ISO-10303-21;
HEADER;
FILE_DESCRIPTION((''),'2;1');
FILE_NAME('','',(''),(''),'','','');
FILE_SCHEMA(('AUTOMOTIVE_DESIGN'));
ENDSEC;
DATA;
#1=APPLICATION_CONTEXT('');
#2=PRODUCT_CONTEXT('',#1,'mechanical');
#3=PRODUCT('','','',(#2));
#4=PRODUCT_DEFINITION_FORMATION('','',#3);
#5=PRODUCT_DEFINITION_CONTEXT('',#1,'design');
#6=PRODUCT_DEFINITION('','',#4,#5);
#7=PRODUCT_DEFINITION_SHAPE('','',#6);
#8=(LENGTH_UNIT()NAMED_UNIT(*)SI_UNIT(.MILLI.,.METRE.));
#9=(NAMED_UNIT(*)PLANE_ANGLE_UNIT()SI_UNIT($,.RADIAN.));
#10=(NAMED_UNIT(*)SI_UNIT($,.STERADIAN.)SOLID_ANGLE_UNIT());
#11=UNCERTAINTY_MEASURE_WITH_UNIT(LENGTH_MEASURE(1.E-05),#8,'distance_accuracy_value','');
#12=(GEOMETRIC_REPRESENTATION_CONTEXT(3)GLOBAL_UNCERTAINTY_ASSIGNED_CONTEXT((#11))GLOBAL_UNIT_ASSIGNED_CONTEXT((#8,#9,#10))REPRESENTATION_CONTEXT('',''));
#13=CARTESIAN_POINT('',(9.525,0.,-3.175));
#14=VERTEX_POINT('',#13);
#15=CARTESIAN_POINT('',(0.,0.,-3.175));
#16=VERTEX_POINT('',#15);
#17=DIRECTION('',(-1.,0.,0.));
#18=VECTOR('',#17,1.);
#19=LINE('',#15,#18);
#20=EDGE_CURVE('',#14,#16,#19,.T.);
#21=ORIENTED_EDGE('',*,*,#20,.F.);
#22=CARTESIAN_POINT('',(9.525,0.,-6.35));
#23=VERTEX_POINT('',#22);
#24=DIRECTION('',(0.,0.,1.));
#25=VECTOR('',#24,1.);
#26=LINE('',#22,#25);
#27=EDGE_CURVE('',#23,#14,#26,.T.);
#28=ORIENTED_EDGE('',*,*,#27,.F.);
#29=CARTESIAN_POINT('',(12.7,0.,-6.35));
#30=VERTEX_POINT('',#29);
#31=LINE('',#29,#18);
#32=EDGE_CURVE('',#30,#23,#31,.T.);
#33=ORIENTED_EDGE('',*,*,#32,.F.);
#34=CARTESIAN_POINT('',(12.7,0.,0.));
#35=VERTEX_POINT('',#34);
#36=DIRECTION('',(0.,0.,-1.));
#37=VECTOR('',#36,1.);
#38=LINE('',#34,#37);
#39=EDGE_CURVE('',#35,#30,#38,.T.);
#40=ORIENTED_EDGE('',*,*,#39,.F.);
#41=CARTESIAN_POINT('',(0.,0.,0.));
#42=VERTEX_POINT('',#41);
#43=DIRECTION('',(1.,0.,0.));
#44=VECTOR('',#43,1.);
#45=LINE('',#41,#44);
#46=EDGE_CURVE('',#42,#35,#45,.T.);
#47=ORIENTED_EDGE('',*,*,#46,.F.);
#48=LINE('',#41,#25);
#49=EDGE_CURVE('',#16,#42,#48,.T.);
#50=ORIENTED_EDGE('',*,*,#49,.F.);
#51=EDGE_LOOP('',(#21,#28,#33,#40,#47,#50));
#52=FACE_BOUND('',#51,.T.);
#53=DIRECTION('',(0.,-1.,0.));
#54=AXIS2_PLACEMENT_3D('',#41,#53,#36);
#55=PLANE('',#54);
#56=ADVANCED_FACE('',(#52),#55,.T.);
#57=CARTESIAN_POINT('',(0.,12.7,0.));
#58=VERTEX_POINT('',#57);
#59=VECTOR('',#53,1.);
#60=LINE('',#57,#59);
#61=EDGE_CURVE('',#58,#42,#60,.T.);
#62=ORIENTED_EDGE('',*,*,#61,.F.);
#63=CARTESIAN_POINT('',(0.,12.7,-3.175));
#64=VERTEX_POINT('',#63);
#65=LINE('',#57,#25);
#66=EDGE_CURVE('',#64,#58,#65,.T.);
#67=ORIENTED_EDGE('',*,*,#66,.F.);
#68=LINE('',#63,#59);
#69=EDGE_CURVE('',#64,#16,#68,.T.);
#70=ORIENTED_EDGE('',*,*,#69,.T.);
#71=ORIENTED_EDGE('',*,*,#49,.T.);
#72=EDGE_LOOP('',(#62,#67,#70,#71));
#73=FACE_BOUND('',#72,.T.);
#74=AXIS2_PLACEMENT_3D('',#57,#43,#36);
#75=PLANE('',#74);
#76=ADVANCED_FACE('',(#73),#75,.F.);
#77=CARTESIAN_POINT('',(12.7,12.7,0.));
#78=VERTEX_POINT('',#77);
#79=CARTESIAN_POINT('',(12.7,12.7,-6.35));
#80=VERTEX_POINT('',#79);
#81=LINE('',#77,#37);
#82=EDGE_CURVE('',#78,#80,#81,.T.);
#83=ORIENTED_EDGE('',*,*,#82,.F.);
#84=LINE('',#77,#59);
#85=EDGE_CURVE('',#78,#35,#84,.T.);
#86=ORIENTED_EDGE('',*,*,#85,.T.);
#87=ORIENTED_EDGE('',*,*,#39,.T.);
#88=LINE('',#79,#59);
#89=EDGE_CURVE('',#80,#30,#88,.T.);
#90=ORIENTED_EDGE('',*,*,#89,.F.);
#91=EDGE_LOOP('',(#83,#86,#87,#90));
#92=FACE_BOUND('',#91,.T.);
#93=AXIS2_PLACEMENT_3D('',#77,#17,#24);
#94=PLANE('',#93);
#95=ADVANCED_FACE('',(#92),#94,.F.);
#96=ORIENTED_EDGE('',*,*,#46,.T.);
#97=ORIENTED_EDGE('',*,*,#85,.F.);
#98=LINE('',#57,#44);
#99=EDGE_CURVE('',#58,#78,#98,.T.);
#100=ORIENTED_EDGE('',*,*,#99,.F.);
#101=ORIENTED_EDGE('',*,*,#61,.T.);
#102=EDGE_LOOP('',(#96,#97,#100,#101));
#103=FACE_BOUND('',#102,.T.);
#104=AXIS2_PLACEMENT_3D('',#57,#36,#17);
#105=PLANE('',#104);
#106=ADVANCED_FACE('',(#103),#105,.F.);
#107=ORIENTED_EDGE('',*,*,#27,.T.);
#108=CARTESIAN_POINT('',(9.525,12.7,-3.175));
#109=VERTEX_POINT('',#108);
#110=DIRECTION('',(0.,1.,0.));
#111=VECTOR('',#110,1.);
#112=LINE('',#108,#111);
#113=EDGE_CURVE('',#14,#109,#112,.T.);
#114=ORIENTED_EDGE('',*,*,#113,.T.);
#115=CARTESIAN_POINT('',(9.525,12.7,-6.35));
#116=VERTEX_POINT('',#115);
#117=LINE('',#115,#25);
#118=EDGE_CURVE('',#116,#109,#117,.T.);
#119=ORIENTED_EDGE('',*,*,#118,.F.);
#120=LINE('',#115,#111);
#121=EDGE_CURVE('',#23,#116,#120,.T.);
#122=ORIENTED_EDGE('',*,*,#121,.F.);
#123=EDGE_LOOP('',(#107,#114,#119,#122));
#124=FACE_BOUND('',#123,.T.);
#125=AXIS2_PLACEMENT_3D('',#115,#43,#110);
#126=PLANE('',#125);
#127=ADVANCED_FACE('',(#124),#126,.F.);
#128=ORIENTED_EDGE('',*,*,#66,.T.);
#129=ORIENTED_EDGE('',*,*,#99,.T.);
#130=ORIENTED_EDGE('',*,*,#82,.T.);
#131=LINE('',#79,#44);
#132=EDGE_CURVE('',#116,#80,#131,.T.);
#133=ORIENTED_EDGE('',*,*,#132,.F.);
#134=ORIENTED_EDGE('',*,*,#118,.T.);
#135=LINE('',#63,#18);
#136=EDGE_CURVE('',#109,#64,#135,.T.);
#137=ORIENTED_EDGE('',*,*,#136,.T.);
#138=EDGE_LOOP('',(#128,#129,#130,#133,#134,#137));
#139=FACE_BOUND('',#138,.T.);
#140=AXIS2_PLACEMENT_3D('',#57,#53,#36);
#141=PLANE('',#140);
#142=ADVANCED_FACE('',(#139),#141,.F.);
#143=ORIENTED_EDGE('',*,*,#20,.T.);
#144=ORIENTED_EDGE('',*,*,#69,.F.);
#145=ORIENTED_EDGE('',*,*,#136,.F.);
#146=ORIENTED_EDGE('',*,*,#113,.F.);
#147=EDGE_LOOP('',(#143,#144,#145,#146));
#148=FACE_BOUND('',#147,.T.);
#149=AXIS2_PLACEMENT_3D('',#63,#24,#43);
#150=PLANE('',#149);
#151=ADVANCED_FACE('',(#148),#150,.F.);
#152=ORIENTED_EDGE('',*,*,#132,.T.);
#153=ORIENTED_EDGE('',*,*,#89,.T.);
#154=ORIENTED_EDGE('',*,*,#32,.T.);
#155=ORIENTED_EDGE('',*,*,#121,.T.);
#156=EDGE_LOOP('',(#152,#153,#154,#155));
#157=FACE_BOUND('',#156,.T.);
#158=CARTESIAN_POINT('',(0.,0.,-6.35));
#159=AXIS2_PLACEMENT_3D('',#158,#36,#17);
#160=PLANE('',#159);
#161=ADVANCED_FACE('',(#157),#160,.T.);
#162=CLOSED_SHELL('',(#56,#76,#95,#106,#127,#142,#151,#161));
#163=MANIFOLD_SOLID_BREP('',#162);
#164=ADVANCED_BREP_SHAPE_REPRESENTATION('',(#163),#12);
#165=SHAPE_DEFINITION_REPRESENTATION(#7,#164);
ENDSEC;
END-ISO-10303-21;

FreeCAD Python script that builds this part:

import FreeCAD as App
import Part
import Sketcher
Q = App.Units.Quantity


def add_polygon(sketch, points):
    """Adds a closed chain of lines whose ends are joined by coincident constraints."""
    first, n = sketch.GeometryCount, len(points)
    for a, b in zip(points, points[1:] + points[:1]):
        sketch.addGeometry(Part.LineSegment(App.Vector(*a, 0), App.Vector(*b, 0)), False)
    for i in range(n):
        sketch.addConstraint(Sketcher.Constraint("Coincident", first + i, 2, first + (i + 1) % n, 1))

doc = App.newDocument("Part")
params = doc.addObject("Spreadsheet::Sheet", "Params")
for row, (alias, value) in enumerate([
    ("sketch1_width", "0.5 in"),
    ("sketch1_height", "0.125 in"),
    ("pad1_length", "0.5 in"),
    ("sketch2_height", "0.5 in"),
    ("sketch2_width", "0.125 in"),
    ("pad2_length", "0.125 in"),
], start=1):
    params.set(f"A{row}", alias)
    params.set(f"B{row}", "=" + value)
    params.setAlias(f"B{row}", alias)

body = doc.addObject("PartDesign::Body", "Body")

sketch1 = body.newObject("Sketcher::SketchObject", "Sketch")
sketch1.AttachmentSupport = (doc.getObject("XZ_Plane"), [""])
sketch1.MapMode = "FlatFace"
add_polygon(sketch1, [(0, -3.2), (0, 0), (12.7, 0), (12.7, -3.2)])
sketch1.addConstraint(Sketcher.Constraint("Vertical", 0))
sketch1.addConstraint(Sketcher.Constraint("Horizontal", 1))
sketch1.addConstraint(Sketcher.Constraint("Vertical", 2))
sketch1.addConstraint(Sketcher.Constraint("Horizontal", 3))
sketch1.addConstraint(Sketcher.Constraint("Coincident", 0, 2, -1, 1))
sketch1.addConstraint(Sketcher.Constraint("DistanceX", 1, 1, 1, 2, Q("0.5 in")))
sketch1.addConstraint(Sketcher.Constraint("DistanceY", 0, 1, 0, 2, Q("0.125 in")))
sketch1.setExpression("Constraints[9]", "Params.sketch1_width")
sketch1.setExpression("Constraints[10]", "Params.sketch1_height")
pad1 = body.newObject("PartDesign::Pad", "Pad")
pad1.Profile = sketch1
pad1.setExpression("Length", "Params.pad1_length")
pad1.Reversed = True

sketch2 = body.newObject("Sketcher::SketchObject", "Sketch001")
sketch2.AttachmentSupport = (doc.getObject("XY_Plane"), [""])
sketch2.MapMode = "FlatFace"
sketch2.AttachmentOffset = App.Placement(App.Vector(0, 0, -0.125 * 25.4), App.Rotation())
add_polygon(sketch2, [(12.7, 12.7), (12.7, 0), (9.5, 0), (9.5, 12.7)])
sketch2.addConstraint(Sketcher.Constraint("Vertical", 0))
sketch2.addConstraint(Sketcher.Constraint("Horizontal", 1))
sketch2.addConstraint(Sketcher.Constraint("Vertical", 2))
sketch2.addConstraint(Sketcher.Constraint("Horizontal", 3))
sketch2.addConstraint(Sketcher.Constraint("PointOnObject", 0, 2, -1))
sketch2.addConstraint(Sketcher.Constraint("DistanceY", 0, 2, 0, 1, Q("0.5 in")))
sketch2.addConstraint(Sketcher.Constraint("DistanceX", -1, 1, 0, 2, Q("0.5 in")))
sketch2.addConstraint(Sketcher.Constraint("DistanceX", 1, 2, 1, 1, Q("0.125 in")))
sketch2.setExpression("Constraints[9]", "Params.sketch2_height")
sketch2.setExpression("Constraints[11]", "Params.sketch2_width")
pad2 = body.newObject("PartDesign::Pad", "Pad001")
pad2.Profile = sketch2
pad2.setExpression("Length", "Params.pad2_length")
pad2.Reversed = True

doc.recompute()
